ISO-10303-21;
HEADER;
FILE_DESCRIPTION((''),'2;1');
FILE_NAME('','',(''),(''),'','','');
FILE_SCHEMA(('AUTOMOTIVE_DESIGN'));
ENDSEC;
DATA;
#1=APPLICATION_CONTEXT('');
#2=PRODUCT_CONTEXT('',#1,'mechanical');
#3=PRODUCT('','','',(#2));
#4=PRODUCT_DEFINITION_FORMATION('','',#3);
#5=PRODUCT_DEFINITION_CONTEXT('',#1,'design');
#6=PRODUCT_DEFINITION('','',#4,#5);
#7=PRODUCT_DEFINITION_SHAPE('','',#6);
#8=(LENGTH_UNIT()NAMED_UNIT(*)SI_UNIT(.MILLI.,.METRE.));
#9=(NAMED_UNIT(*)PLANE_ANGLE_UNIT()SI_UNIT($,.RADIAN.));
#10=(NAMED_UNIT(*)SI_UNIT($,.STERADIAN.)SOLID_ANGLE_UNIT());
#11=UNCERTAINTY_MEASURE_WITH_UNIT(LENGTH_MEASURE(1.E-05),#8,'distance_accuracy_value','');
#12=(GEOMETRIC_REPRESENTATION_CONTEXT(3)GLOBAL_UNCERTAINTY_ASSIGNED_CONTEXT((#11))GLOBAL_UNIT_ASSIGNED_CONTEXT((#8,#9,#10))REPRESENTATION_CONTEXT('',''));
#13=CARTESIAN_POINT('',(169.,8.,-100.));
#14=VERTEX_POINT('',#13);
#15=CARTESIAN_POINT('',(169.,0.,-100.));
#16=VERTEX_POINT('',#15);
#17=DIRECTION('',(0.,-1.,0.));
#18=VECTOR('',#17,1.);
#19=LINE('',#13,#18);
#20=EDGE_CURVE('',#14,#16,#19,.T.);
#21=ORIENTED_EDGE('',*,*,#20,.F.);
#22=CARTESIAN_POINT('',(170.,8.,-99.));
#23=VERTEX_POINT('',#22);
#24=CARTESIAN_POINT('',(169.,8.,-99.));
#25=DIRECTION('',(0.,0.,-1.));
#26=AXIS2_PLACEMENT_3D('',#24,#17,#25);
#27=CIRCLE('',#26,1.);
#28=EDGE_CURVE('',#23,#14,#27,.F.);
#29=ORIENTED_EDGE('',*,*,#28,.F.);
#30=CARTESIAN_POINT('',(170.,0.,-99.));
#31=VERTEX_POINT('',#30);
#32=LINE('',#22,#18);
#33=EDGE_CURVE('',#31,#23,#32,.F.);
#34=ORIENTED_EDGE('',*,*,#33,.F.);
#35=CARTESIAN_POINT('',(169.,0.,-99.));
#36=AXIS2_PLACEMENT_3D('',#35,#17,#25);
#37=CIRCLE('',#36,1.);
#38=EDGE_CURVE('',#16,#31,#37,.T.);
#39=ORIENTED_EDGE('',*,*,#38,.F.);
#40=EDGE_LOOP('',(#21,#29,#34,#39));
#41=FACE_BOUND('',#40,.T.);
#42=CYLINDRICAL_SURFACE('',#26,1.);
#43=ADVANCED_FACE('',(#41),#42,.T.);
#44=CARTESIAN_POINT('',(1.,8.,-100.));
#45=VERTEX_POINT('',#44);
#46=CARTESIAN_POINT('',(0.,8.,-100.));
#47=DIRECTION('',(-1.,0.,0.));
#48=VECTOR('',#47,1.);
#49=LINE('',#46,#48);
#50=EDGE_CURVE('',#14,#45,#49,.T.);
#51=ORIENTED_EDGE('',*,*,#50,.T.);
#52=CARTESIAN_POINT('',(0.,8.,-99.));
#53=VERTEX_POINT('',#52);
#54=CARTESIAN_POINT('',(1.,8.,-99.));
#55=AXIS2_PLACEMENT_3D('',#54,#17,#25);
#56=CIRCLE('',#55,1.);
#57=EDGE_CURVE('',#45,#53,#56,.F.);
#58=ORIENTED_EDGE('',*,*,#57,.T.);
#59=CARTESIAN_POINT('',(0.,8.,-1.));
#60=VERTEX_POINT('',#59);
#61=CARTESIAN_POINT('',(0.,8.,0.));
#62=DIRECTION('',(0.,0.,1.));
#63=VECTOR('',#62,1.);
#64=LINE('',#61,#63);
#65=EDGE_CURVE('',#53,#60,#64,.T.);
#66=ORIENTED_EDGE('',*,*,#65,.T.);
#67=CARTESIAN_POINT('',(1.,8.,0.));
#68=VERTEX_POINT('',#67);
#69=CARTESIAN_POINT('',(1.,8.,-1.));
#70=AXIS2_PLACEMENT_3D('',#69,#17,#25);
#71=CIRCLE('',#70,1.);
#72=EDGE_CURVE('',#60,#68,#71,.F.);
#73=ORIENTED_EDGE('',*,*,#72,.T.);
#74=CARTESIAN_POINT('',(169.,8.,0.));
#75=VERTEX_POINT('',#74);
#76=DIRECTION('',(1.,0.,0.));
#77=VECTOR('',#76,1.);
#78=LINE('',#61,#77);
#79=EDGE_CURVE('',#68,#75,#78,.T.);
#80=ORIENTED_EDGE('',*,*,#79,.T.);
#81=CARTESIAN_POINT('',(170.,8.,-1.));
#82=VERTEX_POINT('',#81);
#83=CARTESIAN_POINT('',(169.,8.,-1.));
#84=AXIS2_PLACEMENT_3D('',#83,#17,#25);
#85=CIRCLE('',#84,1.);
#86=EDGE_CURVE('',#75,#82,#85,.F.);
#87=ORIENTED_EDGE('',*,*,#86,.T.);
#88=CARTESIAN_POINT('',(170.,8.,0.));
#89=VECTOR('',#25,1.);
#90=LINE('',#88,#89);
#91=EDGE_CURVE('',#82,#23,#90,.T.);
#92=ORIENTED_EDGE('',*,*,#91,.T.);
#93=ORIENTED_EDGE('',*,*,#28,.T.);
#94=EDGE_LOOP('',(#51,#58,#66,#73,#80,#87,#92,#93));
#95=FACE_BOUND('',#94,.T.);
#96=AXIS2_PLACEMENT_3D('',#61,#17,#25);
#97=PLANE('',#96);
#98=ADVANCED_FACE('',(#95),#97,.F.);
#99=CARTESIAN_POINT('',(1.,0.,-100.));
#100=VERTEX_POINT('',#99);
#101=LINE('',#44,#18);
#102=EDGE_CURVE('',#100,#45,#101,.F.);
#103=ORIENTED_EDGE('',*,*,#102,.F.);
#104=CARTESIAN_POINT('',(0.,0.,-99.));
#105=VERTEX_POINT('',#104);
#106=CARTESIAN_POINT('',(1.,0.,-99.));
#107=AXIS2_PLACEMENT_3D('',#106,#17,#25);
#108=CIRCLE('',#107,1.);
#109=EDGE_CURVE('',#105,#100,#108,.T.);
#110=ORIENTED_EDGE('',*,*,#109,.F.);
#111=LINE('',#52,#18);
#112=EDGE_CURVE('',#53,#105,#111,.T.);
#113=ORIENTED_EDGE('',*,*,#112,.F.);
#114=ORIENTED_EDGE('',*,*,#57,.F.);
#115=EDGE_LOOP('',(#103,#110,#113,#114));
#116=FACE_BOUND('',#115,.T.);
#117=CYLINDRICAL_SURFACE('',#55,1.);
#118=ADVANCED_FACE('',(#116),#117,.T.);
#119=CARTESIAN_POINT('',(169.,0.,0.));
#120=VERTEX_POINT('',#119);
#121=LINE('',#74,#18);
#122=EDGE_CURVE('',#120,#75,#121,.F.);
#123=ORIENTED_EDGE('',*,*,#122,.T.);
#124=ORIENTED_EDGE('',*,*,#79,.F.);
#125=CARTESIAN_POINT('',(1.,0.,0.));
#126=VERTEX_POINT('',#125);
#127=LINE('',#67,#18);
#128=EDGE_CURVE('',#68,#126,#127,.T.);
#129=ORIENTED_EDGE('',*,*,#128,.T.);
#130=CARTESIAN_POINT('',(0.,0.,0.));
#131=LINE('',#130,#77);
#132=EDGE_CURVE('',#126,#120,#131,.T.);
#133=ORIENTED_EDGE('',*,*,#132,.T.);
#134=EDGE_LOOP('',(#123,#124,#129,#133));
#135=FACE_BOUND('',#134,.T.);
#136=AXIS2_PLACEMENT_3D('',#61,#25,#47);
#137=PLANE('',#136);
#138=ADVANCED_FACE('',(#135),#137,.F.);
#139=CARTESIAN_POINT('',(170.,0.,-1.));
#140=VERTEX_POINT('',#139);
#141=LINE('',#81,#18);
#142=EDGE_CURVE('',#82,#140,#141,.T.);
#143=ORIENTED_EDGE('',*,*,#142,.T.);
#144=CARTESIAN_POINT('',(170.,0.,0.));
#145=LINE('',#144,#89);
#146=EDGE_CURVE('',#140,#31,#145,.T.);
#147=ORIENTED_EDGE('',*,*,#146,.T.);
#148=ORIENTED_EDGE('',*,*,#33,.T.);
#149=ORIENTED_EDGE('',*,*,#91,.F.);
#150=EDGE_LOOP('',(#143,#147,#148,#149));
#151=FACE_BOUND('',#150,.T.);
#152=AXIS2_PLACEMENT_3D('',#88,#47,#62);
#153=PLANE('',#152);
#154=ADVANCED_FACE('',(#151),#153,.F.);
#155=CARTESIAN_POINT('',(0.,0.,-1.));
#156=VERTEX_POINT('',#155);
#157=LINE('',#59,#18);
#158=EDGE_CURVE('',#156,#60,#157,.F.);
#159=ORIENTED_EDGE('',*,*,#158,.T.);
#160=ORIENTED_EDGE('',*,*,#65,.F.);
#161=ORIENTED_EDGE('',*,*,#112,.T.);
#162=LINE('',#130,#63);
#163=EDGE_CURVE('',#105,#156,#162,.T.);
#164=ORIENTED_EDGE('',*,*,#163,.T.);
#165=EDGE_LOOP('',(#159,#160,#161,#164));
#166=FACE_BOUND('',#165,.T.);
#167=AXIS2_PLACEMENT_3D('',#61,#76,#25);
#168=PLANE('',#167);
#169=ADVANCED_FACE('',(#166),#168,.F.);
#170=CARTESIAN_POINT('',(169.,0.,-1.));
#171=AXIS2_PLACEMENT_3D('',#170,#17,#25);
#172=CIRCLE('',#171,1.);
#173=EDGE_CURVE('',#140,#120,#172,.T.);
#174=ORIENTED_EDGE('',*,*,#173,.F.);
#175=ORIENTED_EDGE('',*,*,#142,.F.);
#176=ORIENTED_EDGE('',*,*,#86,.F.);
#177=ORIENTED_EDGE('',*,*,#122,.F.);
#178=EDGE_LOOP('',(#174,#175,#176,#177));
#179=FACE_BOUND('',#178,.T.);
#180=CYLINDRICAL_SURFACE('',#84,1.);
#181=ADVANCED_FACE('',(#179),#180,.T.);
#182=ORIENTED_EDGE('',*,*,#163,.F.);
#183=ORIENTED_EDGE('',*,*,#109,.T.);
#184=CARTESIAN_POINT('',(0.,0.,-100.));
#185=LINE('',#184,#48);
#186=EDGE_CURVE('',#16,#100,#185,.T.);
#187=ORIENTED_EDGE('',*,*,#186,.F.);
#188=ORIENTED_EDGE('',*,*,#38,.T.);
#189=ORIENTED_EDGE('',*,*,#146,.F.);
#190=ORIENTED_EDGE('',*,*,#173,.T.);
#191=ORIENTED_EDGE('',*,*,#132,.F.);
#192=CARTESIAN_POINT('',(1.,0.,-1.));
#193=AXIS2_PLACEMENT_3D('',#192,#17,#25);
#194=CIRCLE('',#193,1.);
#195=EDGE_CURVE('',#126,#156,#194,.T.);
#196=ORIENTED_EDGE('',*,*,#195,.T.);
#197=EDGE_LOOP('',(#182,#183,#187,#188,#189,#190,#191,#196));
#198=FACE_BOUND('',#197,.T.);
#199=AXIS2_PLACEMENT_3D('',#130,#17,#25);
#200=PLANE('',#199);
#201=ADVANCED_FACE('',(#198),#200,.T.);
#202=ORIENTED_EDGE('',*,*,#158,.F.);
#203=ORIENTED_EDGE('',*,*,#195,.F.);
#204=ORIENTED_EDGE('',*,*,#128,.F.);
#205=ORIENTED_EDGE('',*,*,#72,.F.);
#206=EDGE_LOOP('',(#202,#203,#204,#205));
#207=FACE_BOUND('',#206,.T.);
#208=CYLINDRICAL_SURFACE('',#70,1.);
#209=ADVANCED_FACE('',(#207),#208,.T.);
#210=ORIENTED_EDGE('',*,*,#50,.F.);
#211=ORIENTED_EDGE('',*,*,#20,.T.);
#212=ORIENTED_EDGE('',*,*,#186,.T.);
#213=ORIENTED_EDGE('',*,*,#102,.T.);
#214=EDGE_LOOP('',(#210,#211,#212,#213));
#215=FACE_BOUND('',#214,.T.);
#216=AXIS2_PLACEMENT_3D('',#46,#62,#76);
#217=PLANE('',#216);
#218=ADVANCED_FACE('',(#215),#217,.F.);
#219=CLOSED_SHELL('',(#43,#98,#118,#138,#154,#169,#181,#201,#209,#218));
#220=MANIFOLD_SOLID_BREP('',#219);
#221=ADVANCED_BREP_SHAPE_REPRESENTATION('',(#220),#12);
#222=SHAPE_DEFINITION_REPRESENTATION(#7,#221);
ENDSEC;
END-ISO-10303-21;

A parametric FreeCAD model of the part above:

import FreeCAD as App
import Part
import Sketcher


def edges_at(feature, points):
    """Names of the edges that pass closest to the given points."""
    edges = feature.Shape.Edges
    near = lambda p: min(range(len(edges)), key=lambda i: edges[i].distToShape(Part.Vertex(*p))[0])
    return sorted({f"Edge{near(p) + 1}" for p in points})

doc = App.newDocument("Part")
body = doc.addObject("PartDesign::Body", "Body")

sketch1 = body.newObject("Sketcher::SketchObject", "Sketch")
sketch1.AttachmentSupport = (doc.getObject("XZ_Plane"), [""])
sketch1.MapMode = "FlatFace"
sketch1.addGeometry([
    Part.LineSegment(App.Vector(0, -100, 0), App.Vector(0, 0, 0)),
    Part.LineSegment(App.Vector(0, 0, 0), App.Vector(170, 0, 0)),
    Part.LineSegment(App.Vector(170, 0, 0), App.Vector(170, -100, 0)),
    Part.LineSegment(App.Vector(170, -100, 0), App.Vector(0, -100, 0)),
], False)
sketch1.addConstraint([
    Sketcher.Constraint("Coincident", 0, 2, 1, 1),
    Sketcher.Constraint("Coincident", 1, 2, 2, 1),
    Sketcher.Constraint("Coincident", 2, 2, 3, 1),
    Sketcher.Constraint("Coincident", 3, 2, 0, 1),
    Sketcher.Constraint("Vertical", 0),
    Sketcher.Constraint("Horizontal", 1),
    Sketcher.Constraint("Vertical", 2),
    Sketcher.Constraint("Horizontal", 3),
    Sketcher.Constraint("Coincident", 0, 2, -1, 1),
    Sketcher.Constraint("DistanceX", 1, 1, 1, 2, 170.0),
    Sketcher.Constraint("DistanceY", 0, 1, 0, 2, 100.0),
])
pad1 = body.newObject("PartDesign::Pad", "Pad")
pad1.Profile = sketch1
pad1.Length = 8
pad1.Reversed = True
doc.recompute()

fillet = body.newObject("PartDesign::Fillet", "Fillet")
fillet.Base = (pad1, edges_at(pad1, [
    (0, 4, -100),
    (170, 4, -100),
    (170, 4, 0),
    (0, 4, 0),
]))
fillet.Radius = 1

doc.recompute()
